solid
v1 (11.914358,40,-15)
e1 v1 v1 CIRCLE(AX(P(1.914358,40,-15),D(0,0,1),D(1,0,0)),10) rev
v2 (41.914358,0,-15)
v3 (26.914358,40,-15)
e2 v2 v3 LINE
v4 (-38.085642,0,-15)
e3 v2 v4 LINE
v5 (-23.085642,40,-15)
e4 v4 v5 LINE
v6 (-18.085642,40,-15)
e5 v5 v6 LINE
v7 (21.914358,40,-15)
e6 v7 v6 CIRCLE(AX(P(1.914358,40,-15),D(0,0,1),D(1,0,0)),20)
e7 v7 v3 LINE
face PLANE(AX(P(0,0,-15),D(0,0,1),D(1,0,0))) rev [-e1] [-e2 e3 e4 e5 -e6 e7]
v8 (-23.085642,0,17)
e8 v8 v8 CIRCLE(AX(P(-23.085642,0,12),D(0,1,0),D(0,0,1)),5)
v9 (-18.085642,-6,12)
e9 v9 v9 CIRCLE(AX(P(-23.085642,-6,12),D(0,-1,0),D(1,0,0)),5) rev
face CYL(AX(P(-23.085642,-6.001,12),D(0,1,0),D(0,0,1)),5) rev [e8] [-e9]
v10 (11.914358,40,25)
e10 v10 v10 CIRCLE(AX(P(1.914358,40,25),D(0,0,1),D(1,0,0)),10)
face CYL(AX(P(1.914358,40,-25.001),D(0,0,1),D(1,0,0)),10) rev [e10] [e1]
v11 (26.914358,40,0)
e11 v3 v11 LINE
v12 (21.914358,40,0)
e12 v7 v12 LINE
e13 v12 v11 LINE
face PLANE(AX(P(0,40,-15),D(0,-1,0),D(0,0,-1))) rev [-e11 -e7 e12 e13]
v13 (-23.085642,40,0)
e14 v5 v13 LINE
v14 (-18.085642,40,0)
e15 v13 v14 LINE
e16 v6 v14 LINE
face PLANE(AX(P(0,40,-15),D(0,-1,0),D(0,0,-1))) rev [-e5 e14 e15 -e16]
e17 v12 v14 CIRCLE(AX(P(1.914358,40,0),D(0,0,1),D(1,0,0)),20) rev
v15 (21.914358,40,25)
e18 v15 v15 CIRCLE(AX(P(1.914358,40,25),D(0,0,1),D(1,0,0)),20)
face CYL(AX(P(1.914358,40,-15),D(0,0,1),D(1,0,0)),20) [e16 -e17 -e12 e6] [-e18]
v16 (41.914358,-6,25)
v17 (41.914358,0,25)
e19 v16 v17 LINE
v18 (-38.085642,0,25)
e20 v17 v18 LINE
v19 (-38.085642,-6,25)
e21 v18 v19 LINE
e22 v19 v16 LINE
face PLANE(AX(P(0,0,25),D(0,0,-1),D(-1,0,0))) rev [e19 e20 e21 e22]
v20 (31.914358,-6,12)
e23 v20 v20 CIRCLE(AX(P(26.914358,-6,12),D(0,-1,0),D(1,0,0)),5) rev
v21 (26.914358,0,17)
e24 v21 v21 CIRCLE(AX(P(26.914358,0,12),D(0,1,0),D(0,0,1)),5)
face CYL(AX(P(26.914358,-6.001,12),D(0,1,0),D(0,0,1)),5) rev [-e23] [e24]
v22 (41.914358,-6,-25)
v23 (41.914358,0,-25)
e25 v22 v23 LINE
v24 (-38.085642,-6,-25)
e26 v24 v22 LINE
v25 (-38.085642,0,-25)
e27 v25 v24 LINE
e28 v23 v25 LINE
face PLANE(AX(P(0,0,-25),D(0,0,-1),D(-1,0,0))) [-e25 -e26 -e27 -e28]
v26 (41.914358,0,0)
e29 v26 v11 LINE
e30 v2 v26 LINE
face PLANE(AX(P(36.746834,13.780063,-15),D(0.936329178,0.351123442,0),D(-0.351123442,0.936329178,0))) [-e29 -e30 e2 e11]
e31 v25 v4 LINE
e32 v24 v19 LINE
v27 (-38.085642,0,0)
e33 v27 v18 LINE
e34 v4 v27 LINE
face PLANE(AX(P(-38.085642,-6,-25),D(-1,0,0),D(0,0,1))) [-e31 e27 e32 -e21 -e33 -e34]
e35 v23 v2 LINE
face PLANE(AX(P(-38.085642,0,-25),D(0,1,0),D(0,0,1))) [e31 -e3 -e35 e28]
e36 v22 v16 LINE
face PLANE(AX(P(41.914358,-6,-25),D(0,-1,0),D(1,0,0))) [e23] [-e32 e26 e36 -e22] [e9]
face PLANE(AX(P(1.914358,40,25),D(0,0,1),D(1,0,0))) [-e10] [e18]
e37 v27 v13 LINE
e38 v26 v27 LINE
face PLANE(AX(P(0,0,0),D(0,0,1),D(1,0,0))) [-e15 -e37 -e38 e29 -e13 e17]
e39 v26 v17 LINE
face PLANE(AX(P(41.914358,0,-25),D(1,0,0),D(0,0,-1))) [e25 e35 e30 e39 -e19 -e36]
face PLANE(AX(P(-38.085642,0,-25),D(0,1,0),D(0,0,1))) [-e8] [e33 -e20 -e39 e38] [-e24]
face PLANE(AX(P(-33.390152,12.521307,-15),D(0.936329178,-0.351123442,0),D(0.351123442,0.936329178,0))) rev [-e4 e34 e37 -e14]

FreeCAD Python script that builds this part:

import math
import FreeCAD as App
import Part
import Sketcher

V = App.Vector
Q = App.Units.Quantity

doc = App.newDocument("Part")
body = doc.addObject("PartDesign::Body", "Body")

# Sketch on XY plane
sketch1 = doc.addObject("Sketcher::SketchObject", "Sketch")
body.addObject(sketch1)
sketch1.AttachmentSupport = (doc.XY_Plane, [""])
sketch1.MapMode = "FlatFace"
sketch1.addGeometry([
    Part.LineSegment(V(-38, 0, 0), V(-38, -6, 0)),
    Part.LineSegment(V(-38, -6, 0), V(42, -6, 0)),
    Part.LineSegment(V(42, -6, 0), V(42, 0, 0)),
    Part.LineSegment(V(42, 0, 0), V(-38, 0, 0)),
], False)
sketch1.addConstraint([
    Sketcher.Constraint("Coincident", 0, 2, 1, 1),
    Sketcher.Constraint("Coincident", 1, 2, 2, 1),
    Sketcher.Constraint("Coincident", 2, 2, 3, 1),
    Sketcher.Constraint("Coincident", 3, 2, 0, 1),
    Sketcher.Constraint("Vertical", 0),
    Sketcher.Constraint("Horizontal", 1),
    Sketcher.Constraint("Vertical", 2),
    Sketcher.Constraint("Horizontal", 3),
    Sketcher.Constraint("PointOnObject", 2, 2, -1),
    Sketcher.Constraint("DistanceX", 1, 1, 1, 2, Q("80 mm")),
    Sketcher.Constraint("DistanceY", 0, 2, 0, 1, Q("6 mm")),
    Sketcher.Constraint("DistanceX", 0, 2, -1, 1, Q("38.085642 mm")),
])
pad1 = doc.addObject("PartDesign::Pad", "Pad")
body.addObject(pad1)
pad1.Profile = sketch1
pad1.Length = 50
pad1.Reversed = True
body2 = doc.addObject("PartDesign::Body", "Body001")
doc.recompute()

body.Placement = App.Placement(V(0, 0, 25), App.Rotation(V(0, 0, 1), 0))
boolean = doc.addObject("PartDesign::Boolean", "Boolean")
body2.addObject(boolean)
boolean.Type = "Fuse"
boolean.addObjects([body])

# Sketch on XY plane
sketch2 = doc.addObject("Sketcher::SketchObject", "Sketch001")
body2.addObject(sketch2)
sketch2.AttachmentSupport = (doc.getObject("XY_Plane001"), [""])
sketch2.MapMode = "FlatFace"
sketch2.addGeometry([
    Part.LineSegment(V(-38, 0, 0), V(42, 0, 0)),  # 0
    Part.LineSegment(V(42, 0, 0), V(27, 40, 0)),  # 1
    Part.LineSegment(V(27, 40, 0), V(22, 40, 0)),  # 2
    Part.ArcOfCircle(Part.Circle(V(2, 40, 0), V(0, 0, 1), 20), math.radians(0), math.radians(180)),  # 3
    Part.LineSegment(V(-18, 40, 0), V(-23, 40, 0)),  # 4
    Part.LineSegment(V(-23, 40, 0), V(-38, 0, 0)),  # 5
], False)
sketch2.addConstraint([
    Sketcher.Constraint("Coincident", 0, 2, 1, 1),
    Sketcher.Constraint("Coincident", 1, 2, 2, 1),
    Sketcher.Constraint("Coincident", 2, 2, 3, 1),
    Sketcher.Constraint("Coincident", 3, 2, 4, 1),
    Sketcher.Constraint("Coincident", 4, 2, 5, 1),
    Sketcher.Constraint("Coincident", 5, 2, 0, 1),
    Sketcher.Constraint("Horizontal", 0),
    Sketcher.Constraint("Horizontal", 2),
    Sketcher.Constraint("Horizontal", 4),
    Sketcher.Constraint("PointOnObject", 0, 2, -1),
    Sketcher.Constraint("Horizontal", 3, 3, 1, 2),
    Sketcher.Constraint("Horizontal", 2, 2, 3, 2),
    Sketcher.Constraint("Equal", 2, 4),
    Sketcher.Constraint("Equal", 1, 5),
    Sketcher.Constraint("Radius", 3, Q("20 mm")),
    Sketcher.Constraint("DistanceX", 0, 1, 0, 2, Q("80 mm")),
    Sketcher.Constraint("DistanceX", 2, 2, 2, 1, Q("5 mm")),
    Sketcher.Constraint("DistanceY", -1, 1, 3, 3, Q("40 mm")),
    Sketcher.Constraint("DistanceX", -1, 1, 3, 3, Q("1.914358 mm")),
])
pad2 = doc.addObject("PartDesign::Pad", "Pad001")
body2.addObject(pad2)
pad2.Profile = sketch2
pad2.Length = 15
pad2.Reversed = True

# Sketch on XY plane
sketch3 = doc.addObject("Sketcher::SketchObject", "Sketch002")
body2.addObject(sketch3)
sketch3.AttachmentSupport = (doc.getObject("XY_Plane001"), [""])
sketch3.MapMode = "FlatFace"
sketch3.AttachmentOffset = App.Placement(V(0, 0, 25), App.Rotation())
sketch3.addGeometry(Part.Circle(V(2, 40, 0), V(0, 0, 1), 20), False)
sketch3.addConstraint([
    Sketcher.Constraint("Diameter", 0, Q("40 mm")),
    Sketcher.Constraint("DistanceY", -1, 1, 0, 3, Q("40 mm")),
    Sketcher.Constraint("DistanceX", -1, 1, 0, 3, Q("1.914358 mm")),
])
pad3 = doc.addObject("PartDesign::Pad", "Pad002")
body2.addObject(pad3)
pad3.Profile = sketch3
pad3.Length = 25
pad3.Reversed = True

# Sketch on XY plane
sketch4 = doc.addObject("Sketcher::SketchObject", "Sketch003")
body2.addObject(sketch4)
sketch4.AttachmentSupport = (doc.getObject("XY_Plane001"), [""])
sketch4.MapMode = "FlatFace"
sketch4.AttachmentOffset = App.Placement(V(0, 0, 25), App.Rotation())
sketch4.addGeometry(Part.Circle(V(2, 40, 0), V(0, 0, 1), 10), False)
sketch4.addConstraint([
    Sketcher.Constraint("Diameter", 0, Q("20 mm")),
    Sketcher.Constraint("DistanceY", -1, 1, 0, 3, Q("40 mm")),
    Sketcher.Constraint("DistanceX", -1, 1, 0, 3, Q("1.914358 mm")),
])
pocket1 = doc.addObject("PartDesign::Pocket", "Pocket")
body2.addObject(pocket1)
pocket1.Profile = sketch4
pocket1.Type = "UpToFirst"

# Sketch on XZ plane
sketch5 = doc.addObject("Sketcher::SketchObject", "Sketch004")
body2.addObject(sketch5)
sketch5.AttachmentSupport = (doc.getObject("XZ_Plane001"), [""])
sketch5.MapMode = "FlatFace"
sketch5.addGeometry(Part.Circle(V(27, 12, 0), V(0, 0, 1), 5), False)
sketch5.addConstraint([
    Sketcher.Constraint("Diameter", 0, Q("10 mm")),
    Sketcher.Constraint("DistanceY", -1, 1, 0, 3, Q("12 mm")),
    Sketcher.Constraint("DistanceX", -1, 1, 0, 3, Q("26.914358 mm")),
])
pocket2 = doc.addObject("PartDesign::Pocket", "Pocket001")
body2.addObject(pocket2)
pocket2.Profile = sketch5
pocket2.Type = "UpToFirst"
pocket2.Reversed = True

# Sketch on XZ plane
sketch6 = doc.addObject("Sketcher::SketchObject", "Sketch005")
body2.addObject(sketch6)
sketch6.AttachmentSupport = (doc.getObject("XZ_Plane001"), [""])
sketch6.MapMode = "FlatFace"
sketch6.addGeometry(Part.Circle(V(-23, 12, 0), V(0, 0, 1), 5), False)
sketch6.addConstraint([
    Sketcher.Constraint("Diameter", 0, Q("10 mm")),
    Sketcher.Constraint("DistanceY", -1, 1, 0, 3, Q("12 mm")),
    Sketcher.Constraint("DistanceX", 0, 3, -1, 1, Q("23.085642 mm")),
])
pocket3 = doc.addObject("PartDesign::Pocket", "Pocket002")
body2.addObject(pocket3)
pocket3.Profile = sketch6
pocket3.Type = "UpToFirst"
pocket3.Reversed = True

doc.recompute()
